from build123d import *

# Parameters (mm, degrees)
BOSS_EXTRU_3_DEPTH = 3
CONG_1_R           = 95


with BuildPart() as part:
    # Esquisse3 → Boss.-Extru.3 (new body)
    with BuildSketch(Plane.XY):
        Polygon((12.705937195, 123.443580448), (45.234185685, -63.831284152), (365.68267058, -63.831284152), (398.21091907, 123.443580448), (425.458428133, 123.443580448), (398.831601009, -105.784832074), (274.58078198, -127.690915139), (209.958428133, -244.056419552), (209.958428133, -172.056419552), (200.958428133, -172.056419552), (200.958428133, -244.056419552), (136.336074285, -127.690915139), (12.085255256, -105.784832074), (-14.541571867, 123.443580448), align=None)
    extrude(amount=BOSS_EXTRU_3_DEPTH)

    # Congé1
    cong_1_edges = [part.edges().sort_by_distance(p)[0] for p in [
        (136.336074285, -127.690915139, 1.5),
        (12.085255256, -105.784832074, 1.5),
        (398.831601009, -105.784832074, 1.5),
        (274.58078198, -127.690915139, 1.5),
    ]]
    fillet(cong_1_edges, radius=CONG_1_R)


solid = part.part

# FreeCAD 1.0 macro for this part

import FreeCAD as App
import Part
import Sketcher


def edges_at(feature, points):
    """Names of the edges that pass closest to the given points."""
    edges = feature.Shape.Edges
    near = lambda p: min(range(len(edges)), key=lambda i: edges[i].distToShape(Part.Vertex(*p))[0])
    return sorted({f"Edge{near(p) + 1}" for p in points})


def add_polygon(sketch, points):
    """Adds a closed chain of lines whose ends are joined by coincident constraints."""
    first, n = sketch.GeometryCount, len(points)
    for a, b in zip(points, points[1:] + points[:1]):
        sketch.addGeometry(Part.LineSegment(App.Vector(*a, 0), App.Vector(*b, 0)), False)
    for i in range(n):
        sketch.addConstraint(Sketcher.Constraint("Coincident", first + i, 2, first + (i + 1) % n, 1))

doc = App.newDocument("Part")
body = doc.addObject("PartDesign::Body", "Body")

# Sketch on XY plane
sketch1 = body.newObject("Sketcher::SketchObject", "Sketch")
sketch1.AttachmentSupport = (doc.getObject("XY_Plane"), [""])
sketch1.MapMode = "FlatFace"
add_polygon(sketch1, [(45.234186, -63.831284), (12.705937, 123.44358), (-14.541572, 123.44358), (12.085255, -105.784832), (136.336074, -127.690915), (200.958428, -244.05642), (200.958428, -172.05642), (209.958428, -172.05642), (209.958428, -244.05642), (274.580782, -127.690915), (398.831601, -105.784832), (425.458428, 123.44358), (398.210919, 123.44358), (365.682671, -63.831284)])  # lines 0-13
sketch1.addConstraint(Sketcher.Constraint("Horizontal", 1))
sketch1.addConstraint(Sketcher.Constraint("Vertical", 5))
sketch1.addConstraint(Sketcher.Constraint("Horizontal", 6))
sketch1.addConstraint(Sketcher.Constraint("Vertical", 7))
sketch1.addConstraint(Sketcher.Constraint("Horizontal", 11))
sketch1.addConstraint(Sketcher.Constraint("Horizontal", 13))
sketch1.addConstraint(Sketcher.Constraint("Horizontal", 4, 2, 7, 2))
sketch1.addConstraint(Sketcher.Constraint("Horizontal", 3, 2, 8, 2))
sketch1.addConstraint(Sketcher.Constraint("Horizontal", 2, 2, 9, 2))
sketch1.addConstraint(Sketcher.Constraint("Horizontal", 1, 2, 10, 2))
sketch1.addConstraint(Sketcher.Constraint("Equal", 1, 11))
sketch1.addConstraint(Sketcher.Constraint("Equal", 4, 8))
sketch1.addConstraint(Sketcher.Constraint("Equal", 3, 9))
sketch1.addConstraint(Sketcher.Constraint("Equal", 2, 10))
sketch1.addConstraint(Sketcher.Constraint("Equal", 0, 12))
sketch1.addConstraint(Sketcher.Constraint("DistanceX", 6, 1, 6, 2, 9.0))
sketch1.addConstraint(Sketcher.Constraint("DistanceY", 5, 1, 5, 2, 72.0))
sketch1.addConstraint(Sketcher.Constraint("DistanceY", 4, 2, 0, 2, 367.5))
sketch1.addConstraint(Sketcher.Constraint("DistanceX", 1, 2, 4, 2, 215.5))
sketch1.addConstraint(Sketcher.Constraint("DistanceX", 1, 2, 1, 1, 27.247509))
sketch1.addConstraint(Sketcher.Constraint("DistanceX", -1, 1, 9, 2, 398.831601))
sketch1.addConstraint(Sketcher.Constraint("Distance", 0, 190.078831))
sketch1.addConstraint(Sketcher.Constraint("Distance", 3, 126.167121))
sketch1.addConstraint(Sketcher.Constraint("DistanceX", 13, 2, 13, 1, 320.448485))
sketch1.addConstraint(Sketcher.Constraint("DistanceY", -1, 1, 0, 2, 123.44358))
sketch1.addConstraint(Sketcher.Constraint("DistanceX", 1, 2, -1, 1, 14.541572))
sketch1.addConstraint(Sketcher.Constraint("DistanceX", -1, 1, 8, 2, 274.580782))
sketch1.addConstraint(Sketcher.Constraint("DistanceY", 8, 2, 12, 2, 63.859631))
pad1 = body.newObject("PartDesign::Pad", "Pad")
pad1.Profile = sketch1
pad1.Length = 3
doc.recompute()

fillet = body.newObject("PartDesign::Fillet", "Fillet")
fillet.Base = (pad1, edges_at(pad1, [
    (136.336, -127.691, 1.5),
    (12.085, -105.785, 1.5),
    (398.832, -105.785, 1.5),
    (274.581, -127.691, 1.5),
]))
fillet.Radius = 95

doc.recompute()
